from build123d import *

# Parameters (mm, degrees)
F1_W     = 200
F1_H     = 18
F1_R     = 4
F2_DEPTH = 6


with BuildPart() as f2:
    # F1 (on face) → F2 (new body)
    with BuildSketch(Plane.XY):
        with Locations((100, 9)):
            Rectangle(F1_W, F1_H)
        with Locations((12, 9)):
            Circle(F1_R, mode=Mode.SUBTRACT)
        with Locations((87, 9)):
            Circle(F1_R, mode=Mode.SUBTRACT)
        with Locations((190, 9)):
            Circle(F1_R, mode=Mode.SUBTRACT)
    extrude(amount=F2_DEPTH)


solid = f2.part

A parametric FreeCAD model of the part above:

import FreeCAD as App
import Part
import Sketcher
from FreeCAD import Vector

doc = App.newDocument("Part")
body = doc.addObject("PartDesign::Body", "Body")

sketch1 = body.newObject("Sketcher::SketchObject", "Sketch")
sketch1.AttachmentSupport = (doc.getObject("XY_Plane"), [""])
sketch1.MapMode = "FlatFace"
sketch1.addGeometry([
    Part.LineSegment(Vector(0, 18, 0), Vector(0, 0, 0)),
    Part.LineSegment(Vector(0, 0, 0), Vector(200, 0, 0)),
    Part.LineSegment(Vector(200, 0, 0), Vector(200, 18, 0)),
    Part.LineSegment(Vector(200, 18, 0), Vector(0, 18, 0)),
    Part.Circle(Vector(12, 9, 0), Vector(0, 0, 1), 4),
    Part.Circle(Vector(87, 9, 0), Vector(0, 0, 1), 4),
    Part.Circle(Vector(190, 9, 0), Vector(0, 0, 1), 4),
], False)
sketch1.addConstraint([
    Sketcher.Constraint("Coincident", 0, 2, 1, 1),
    Sketcher.Constraint("Coincident", 1, 2, 2, 1),
    Sketcher.Constraint("Coincident", 2, 2, 3, 1),
    Sketcher.Constraint("Coincident", 3, 2, 0, 1),
    Sketcher.Constraint("Vertical", 0),
    Sketcher.Constraint("Horizontal", 1),
    Sketcher.Constraint("Vertical", 2),
    Sketcher.Constraint("Horizontal", 3),
    Sketcher.Constraint("Coincident", 0, 2, -1, 1),
    Sketcher.Constraint("Equal", 4, 5),
    Sketcher.Constraint("Equal", 5, 6),
    Sketcher.Constraint("Horizontal", 4, 3, 5, 3),
    Sketcher.Constraint("Horizontal", 5, 3, 6, 3),
    Sketcher.Constraint("Diameter", 4, 8.0),
    Sketcher.Constraint("DistanceX", 1, 1, 1, 2, 200.0),
    Sketcher.Constraint("DistanceY", 0, 2, 0, 1, 18.0),
    Sketcher.Constraint("DistanceX", -1, 1, 4, 3, 12.0),
    Sketcher.Constraint("DistanceY", -1, 1, 4, 3, 9.0),
    Sketcher.Constraint("DistanceX", -1, 1, 5, 3, 87.0),
    Sketcher.Constraint("DistanceX", -1, 1, 6, 3, 190.0),
])
pad1 = body.newObject("PartDesign::Pad", "Pad")
pad1.Profile = sketch1
pad1.Length = 6

doc.recompute()
